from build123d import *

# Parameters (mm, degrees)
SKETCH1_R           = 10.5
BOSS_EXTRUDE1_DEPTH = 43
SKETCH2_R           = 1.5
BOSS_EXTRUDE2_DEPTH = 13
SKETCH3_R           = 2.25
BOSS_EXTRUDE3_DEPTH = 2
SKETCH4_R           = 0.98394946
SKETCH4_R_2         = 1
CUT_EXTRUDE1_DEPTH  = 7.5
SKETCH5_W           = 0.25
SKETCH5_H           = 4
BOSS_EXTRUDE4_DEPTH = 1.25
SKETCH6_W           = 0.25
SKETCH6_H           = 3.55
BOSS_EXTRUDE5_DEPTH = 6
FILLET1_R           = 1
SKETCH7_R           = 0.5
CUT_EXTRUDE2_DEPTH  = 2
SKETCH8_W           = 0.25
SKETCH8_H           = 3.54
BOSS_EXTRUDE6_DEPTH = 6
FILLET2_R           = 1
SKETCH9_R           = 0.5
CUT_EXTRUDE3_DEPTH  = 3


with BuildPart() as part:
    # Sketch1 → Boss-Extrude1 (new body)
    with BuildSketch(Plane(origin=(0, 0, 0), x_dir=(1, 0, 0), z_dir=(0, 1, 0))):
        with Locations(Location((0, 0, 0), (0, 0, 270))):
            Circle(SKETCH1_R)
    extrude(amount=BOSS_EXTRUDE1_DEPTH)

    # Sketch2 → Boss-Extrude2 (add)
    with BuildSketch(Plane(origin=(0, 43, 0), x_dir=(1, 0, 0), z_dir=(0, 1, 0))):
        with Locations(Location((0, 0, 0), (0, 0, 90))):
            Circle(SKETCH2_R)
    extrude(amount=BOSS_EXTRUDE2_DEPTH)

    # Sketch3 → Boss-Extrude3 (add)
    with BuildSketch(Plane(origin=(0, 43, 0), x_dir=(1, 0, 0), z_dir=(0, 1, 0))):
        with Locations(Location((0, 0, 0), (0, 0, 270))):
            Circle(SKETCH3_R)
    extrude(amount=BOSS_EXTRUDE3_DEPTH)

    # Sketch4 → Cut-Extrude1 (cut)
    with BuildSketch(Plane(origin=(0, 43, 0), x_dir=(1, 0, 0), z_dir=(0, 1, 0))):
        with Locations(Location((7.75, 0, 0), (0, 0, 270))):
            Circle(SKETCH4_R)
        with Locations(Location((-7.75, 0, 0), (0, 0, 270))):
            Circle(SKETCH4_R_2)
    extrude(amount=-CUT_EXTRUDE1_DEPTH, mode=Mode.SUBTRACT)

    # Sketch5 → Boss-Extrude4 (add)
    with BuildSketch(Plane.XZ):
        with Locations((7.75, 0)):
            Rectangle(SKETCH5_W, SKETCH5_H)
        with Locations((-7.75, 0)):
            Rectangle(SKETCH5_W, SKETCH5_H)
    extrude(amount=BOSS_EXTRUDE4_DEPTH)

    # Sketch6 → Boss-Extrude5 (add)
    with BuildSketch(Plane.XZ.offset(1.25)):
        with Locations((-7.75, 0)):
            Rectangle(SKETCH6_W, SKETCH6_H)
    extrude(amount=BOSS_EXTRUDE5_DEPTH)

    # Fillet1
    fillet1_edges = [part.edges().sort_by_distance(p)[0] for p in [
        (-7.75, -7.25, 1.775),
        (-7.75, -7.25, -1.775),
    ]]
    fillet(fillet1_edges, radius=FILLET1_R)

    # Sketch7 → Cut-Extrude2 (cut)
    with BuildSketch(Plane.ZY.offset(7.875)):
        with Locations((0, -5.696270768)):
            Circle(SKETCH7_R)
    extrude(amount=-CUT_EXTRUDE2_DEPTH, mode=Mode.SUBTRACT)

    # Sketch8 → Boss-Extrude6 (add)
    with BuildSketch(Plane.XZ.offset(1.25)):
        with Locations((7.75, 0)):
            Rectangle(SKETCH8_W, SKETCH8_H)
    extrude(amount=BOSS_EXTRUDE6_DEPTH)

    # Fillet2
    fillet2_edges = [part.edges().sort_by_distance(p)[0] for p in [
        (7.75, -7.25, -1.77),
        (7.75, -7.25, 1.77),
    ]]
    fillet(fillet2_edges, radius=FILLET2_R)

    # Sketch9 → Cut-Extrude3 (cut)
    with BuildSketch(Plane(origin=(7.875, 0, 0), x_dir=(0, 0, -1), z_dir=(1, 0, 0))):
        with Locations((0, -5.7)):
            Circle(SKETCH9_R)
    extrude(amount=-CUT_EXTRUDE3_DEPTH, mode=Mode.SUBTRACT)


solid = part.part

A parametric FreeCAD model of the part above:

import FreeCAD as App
import Part
import Sketcher
from FreeCAD import Vector
Q = App.Units.Quantity


def edges_at(feature, points):
    """Names of the edges that pass closest to the given points."""
    edges = feature.Shape.Edges
    near = lambda p: min(range(len(edges)), key=lambda i: edges[i].distToShape(Part.Vertex(*p))[0])
    return sorted({f"Edge{near(p) + 1}" for p in points})

doc = App.newDocument("Part")
body = doc.addObject("PartDesign::Body", "Body")

sketch1 = body.newObject("Sketcher::SketchObject", "Sketch")
sketch1.AttachmentSupport = (doc.getObject("XZ_Plane"), [""])
sketch1.MapMode = "FlatFace"
sketch1.addGeometry(Part.Circle(Vector(0, 0, 0), Vector(0, 0, 1), 10), False)
sketch1.addConstraint([
    Sketcher.Constraint("Coincident", 0, 3, -1, 1),
    Sketcher.Constraint("Diameter", 0, Q("21 mm")),
])
pad1 = body.newObject("PartDesign::Pad", "Pad")
pad1.Profile = sketch1
pad1.Length = 43
pad1.Reversed = True

sketch2 = body.newObject("Sketcher::SketchObject", "Sketch001")
sketch2.AttachmentSupport = (doc.getObject("XZ_Plane"), [""])
sketch2.MapMode = "FlatFace"
sketch2.AttachmentOffset = App.Placement(Vector(0, 0, -43), App.Rotation())
sketch2.addGeometry(Part.Circle(Vector(0, 0, 0), Vector(0, 0, 1), 1.5), False)
sketch2.addConstraint([
    Sketcher.Constraint("Coincident", 0, 3, -1, 1),
    Sketcher.Constraint("Diameter", 0, Q("3 mm")),
])
pad2 = body.newObject("PartDesign::Pad", "Pad001")
pad2.Profile = sketch2
pad2.Length = 13
pad2.Reversed = True

sketch3 = body.newObject("Sketcher::SketchObject", "Sketch002")
sketch3.AttachmentSupport = (doc.getObject("XZ_Plane"), [""])
sketch3.MapMode = "FlatFace"
sketch3.AttachmentOffset = App.Placement(Vector(0, 0, -43), App.Rotation())
sketch3.addGeometry(Part.Circle(Vector(0, 0, 0), Vector(0, 0, 1), 2.2), False)
sketch3.addConstraint([
    Sketcher.Constraint("Coincident", 0, 3, -1, 1),
    Sketcher.Constraint("Diameter", 0, Q("4.5 mm")),
])
pad3 = body.newObject("PartDesign::Pad", "Pad002")
pad3.Profile = sketch3
pad3.Length = 2
pad3.Reversed = True

sketch4 = body.newObject("Sketcher::SketchObject", "Sketch003")
sketch4.AttachmentSupport = (doc.getObject("XZ_Plane"), [""])
sketch4.MapMode = "FlatFace"
sketch4.AttachmentOffset = App.Placement(Vector(0, 0, -43), App.Rotation())
sketch4.addGeometry([
    Part.Circle(Vector(7.8, 0, 0), Vector(0, 0, 1), 1),
    Part.Circle(Vector(-7.8, 0, 0), Vector(0, 0, 1), 1),
], False)
sketch4.addConstraint([
    Sketcher.Constraint("Symmetric", 0, 3, 1, 3, -1, 1),
    Sketcher.Constraint("PointOnObject", 0, 3, -1),
    Sketcher.Constraint("Diameter", 1, Q("2 mm")),
    Sketcher.Constraint("Diameter", 0, Q("1.967899 mm")),
    Sketcher.Constraint("DistanceX", 1, 3, 0, 3, Q("15.5 mm")),
])
pocket1 = body.newObject("PartDesign::Pocket", "Pocket")
pocket1.Profile = sketch4
pocket1.Length = 7.5
pocket1.Reversed = True

sketch5 = body.newObject("Sketcher::SketchObject", "Sketch004")
sketch5.AttachmentSupport = (doc.getObject("XZ_Plane"), [""])
sketch5.MapMode = "FlatFace"
sketch5.addGeometry([
    Part.LineSegment(Vector(7.62, 2, 0), Vector(7.62, -2, 0)),
    Part.LineSegment(Vector(7.62, -2, 0), Vector(7.88, -2, 0)),
    Part.LineSegment(Vector(7.88, -2, 0), Vector(7.88, 2, 0)),
    Part.LineSegment(Vector(7.88, 2, 0), Vector(7.62, 2, 0)),
    Part.LineSegment(Vector(-7.88, 2, 0), Vector(-7.88, -2, 0)),
    Part.LineSegment(Vector(-7.88, -2, 0), Vector(-7.62, -2, 0)),
    Part.LineSegment(Vector(-7.62, -2, 0), Vector(-7.62, 2, 0)),
    Part.LineSegment(Vector(-7.62, 2, 0), Vector(-7.88, 2, 0)),
], False)
sketch5.addConstraint([
    Sketcher.Constraint("Coincident", 0, 2, 1, 1),
    Sketcher.Constraint("Coincident", 1, 2, 2, 1),
    Sketcher.Constraint("Coincident", 2, 2, 3, 1),
    Sketcher.Constraint("Coincident", 3, 2, 0, 1),
    Sketcher.Constraint("Coincident", 4, 2, 5, 1),
    Sketcher.Constraint("Coincident", 5, 2, 6, 1),
    Sketcher.Constraint("Coincident", 6, 2, 7, 1),
    Sketcher.Constraint("Coincident", 7, 2, 4, 1),
    Sketcher.Constraint("Vertical", 0),
    Sketcher.Constraint("Horizontal", 1),
    Sketcher.Constraint("Vertical", 2),
    Sketcher.Constraint("Horizontal", 3),
    Sketcher.Constraint("Vertical", 4),
    Sketcher.Constraint("Horizontal", 5),
    Sketcher.Constraint("Vertical", 6),
    Sketcher.Constraint("Horizontal", 7),
    Sketcher.Constraint("Symmetric", 2, 2, 4, 2, -1, 1),
    Sketcher.Constraint("Symmetric", 0, 2, 6, 2, -1, 1),
    Sketcher.Constraint("Horizontal", 1, 2, 4, 2),
    Sketcher.Constraint("DistanceY", 0, 2, 0, 1, Q("4 mm")),
    Sketcher.Constraint("DistanceX", 1, 1, 1, 2, Q("0.25 mm")),
    Sketcher.Constraint("DistanceX", 4, 2, 0, 2, Q("15.5 mm")),
])
pad4 = body.newObject("PartDesign::Pad", "Pad003")
pad4.Profile = sketch5
pad4.Length = 1.25

sketch6 = body.newObject("Sketcher::SketchObject", "Sketch005")
sketch6.AttachmentSupport = (doc.getObject("XZ_Plane"), [""])
sketch6.MapMode = "FlatFace"
sketch6.AttachmentOffset = App.Placement(Vector(0, 0, 1.25), App.Rotation())
sketch6.addGeometry([
    Part.LineSegment(Vector(-7.88, 1.77, 0), Vector(-7.88, -1.77, 0)),
    Part.LineSegment(Vector(-7.88, -1.77, 0), Vector(-7.62, -1.77, 0)),
    Part.LineSegment(Vector(-7.62, -1.77, 0), Vector(-7.62, 1.77, 0)),
    Part.LineSegment(Vector(-7.62, 1.77, 0), Vector(-7.88, 1.77, 0)),
], False)
sketch6.addConstraint([
    Sketcher.Constraint("Coincident", 0, 2, 1, 1),
    Sketcher.Constraint("Coincident", 1, 2, 2, 1),
    Sketcher.Constraint("Coincident", 2, 2, 3, 1),
    Sketcher.Constraint("Coincident", 3, 2, 0, 1),
    Sketcher.Constraint("Vertical", 0),
    Sketcher.Constraint("Horizontal", 1),
    Sketcher.Constraint("Vertical", 2),
    Sketcher.Constraint("Horizontal", 3),
    Sketcher.Constraint("DistanceX", 1, 1, 1, 2, Q("0.25 mm")),
    Sketcher.Constraint("DistanceY", 0, 2, 0, 1, Q("3.55 mm")),
    Sketcher.Constraint("DistanceX", 0, 2, -1, 1, Q("7.875 mm")),
    Sketcher.Constraint("DistanceY", 0, 2, -1, 1, Q("1.775 mm")),
])
pad5 = body.newObject("PartDesign::Pad", "Pad004")
pad5.Profile = sketch6
pad5.Length = 6
doc.recompute()

fillet = body.newObject("PartDesign::Fillet", "Fillet")
fillet.Base = (pad5, edges_at(pad5, [(-7.75, -7.25, 1.775), (-7.75, -7.25, -1.775)]))
fillet.Radius = 1

sketch7 = body.newObject("Sketcher::SketchObject", "Sketch006")
sketch7.AttachmentSupport = (doc.getObject("YZ_Plane"), [""])
sketch7.MapMode = "FlatFace"
sketch7.AttachmentOffset = App.Placement(Vector(0, 0, -7.875), App.Rotation())
sketch7.addGeometry(Part.Circle(Vector(-5.7, 0, 0), Vector(0, 0, 1), 0.5), False)
sketch7.addConstraint([
    Sketcher.Constraint("PointOnObject", 0, 3, -1),
    Sketcher.Constraint("Diameter", 0, Q("1 mm")),
    Sketcher.Constraint("DistanceX", 0, 3, -1, 1, Q("5.696271 mm")),
])
pocket2 = body.newObject("PartDesign::Pocket", "Pocket001")
pocket2.Profile = sketch7
pocket2.Length = 2
pocket2.Reversed = True

sketch8 = body.newObject("Sketcher::SketchObject", "Sketch007")
sketch8.AttachmentSupport = (doc.getObject("XZ_Plane"), [""])
sketch8.MapMode = "FlatFace"
sketch8.AttachmentOffset = App.Placement(Vector(0, 0, 1.25), App.Rotation())
sketch8.addGeometry([
    Part.LineSegment(Vector(7.62, 1.77, 0), Vector(7.62, -1.77, 0)),
    Part.LineSegment(Vector(7.62, -1.77, 0), Vector(7.88, -1.77, 0)),
    Part.LineSegment(Vector(7.88, -1.77, 0), Vector(7.88, 1.77, 0)),
    Part.LineSegment(Vector(7.88, 1.77, 0), Vector(7.62, 1.77, 0)),
], False)
sketch8.addConstraint([
    Sketcher.Constraint("Coincident", 0, 2, 1, 1),
    Sketcher.Constraint("Coincident", 1, 2, 2, 1),
    Sketcher.Constraint("Coincident", 2, 2, 3, 1),
    Sketcher.Constraint("Coincident", 3, 2, 0, 1),
    Sketcher.Constraint("Vertical", 0),
    Sketcher.Constraint("Horizontal", 1),
    Sketcher.Constraint("Vertical", 2),
    Sketcher.Constraint("Horizontal", 3),
    Sketcher.Constraint("DistanceX", 1, 1, 1, 2, Q("0.25 mm")),
    Sketcher.Constraint("DistanceY", 0, 2, 0, 1, Q("3.54 mm")),
    Sketcher.Constraint("DistanceY", 0, 2, -1, 1, Q("1.77 mm")),
    Sketcher.Constraint("DistanceX", -1, 1, 0, 2, Q("7.625 mm")),
])
pad6 = body.newObject("PartDesign::Pad", "Pad005")
pad6.Profile = sketch8
pad6.Length = 6
doc.recompute()

fillet2 = body.newObject("PartDesign::Fillet", "Fillet001")
fillet2.Base = (pad6, edges_at(pad6, [(7.75, -7.25, -1.77), (7.75, -7.25, 1.77)]))
fillet2.Radius = 1

sketch9 = body.newObject("Sketcher::SketchObject", "Sketch008")
sketch9.AttachmentSupport = (doc.getObject("YZ_Plane"), [""])
sketch9.MapMode = "FlatFace"
sketch9.AttachmentOffset = App.Placement(Vector(0, 0, 7.875), App.Rotation())
sketch9.addGeometry(Part.Circle(Vector(-5.7, 0, 0), Vector(0, 0, 1), 0.5), False)
sketch9.addConstraint([
    Sketcher.Constraint("PointOnObject", 0, 3, -1),
    Sketcher.Constraint("Diameter", 0, Q("1 mm")),
    Sketcher.Constraint("DistanceX", 0, 3, -1, 1, Q("5.7 mm")),
])
pocket3 = body.newObject("PartDesign::Pocket", "Pocket002")
pocket3.Profile = sketch9
pocket3.Length = 3

doc.recompute()
